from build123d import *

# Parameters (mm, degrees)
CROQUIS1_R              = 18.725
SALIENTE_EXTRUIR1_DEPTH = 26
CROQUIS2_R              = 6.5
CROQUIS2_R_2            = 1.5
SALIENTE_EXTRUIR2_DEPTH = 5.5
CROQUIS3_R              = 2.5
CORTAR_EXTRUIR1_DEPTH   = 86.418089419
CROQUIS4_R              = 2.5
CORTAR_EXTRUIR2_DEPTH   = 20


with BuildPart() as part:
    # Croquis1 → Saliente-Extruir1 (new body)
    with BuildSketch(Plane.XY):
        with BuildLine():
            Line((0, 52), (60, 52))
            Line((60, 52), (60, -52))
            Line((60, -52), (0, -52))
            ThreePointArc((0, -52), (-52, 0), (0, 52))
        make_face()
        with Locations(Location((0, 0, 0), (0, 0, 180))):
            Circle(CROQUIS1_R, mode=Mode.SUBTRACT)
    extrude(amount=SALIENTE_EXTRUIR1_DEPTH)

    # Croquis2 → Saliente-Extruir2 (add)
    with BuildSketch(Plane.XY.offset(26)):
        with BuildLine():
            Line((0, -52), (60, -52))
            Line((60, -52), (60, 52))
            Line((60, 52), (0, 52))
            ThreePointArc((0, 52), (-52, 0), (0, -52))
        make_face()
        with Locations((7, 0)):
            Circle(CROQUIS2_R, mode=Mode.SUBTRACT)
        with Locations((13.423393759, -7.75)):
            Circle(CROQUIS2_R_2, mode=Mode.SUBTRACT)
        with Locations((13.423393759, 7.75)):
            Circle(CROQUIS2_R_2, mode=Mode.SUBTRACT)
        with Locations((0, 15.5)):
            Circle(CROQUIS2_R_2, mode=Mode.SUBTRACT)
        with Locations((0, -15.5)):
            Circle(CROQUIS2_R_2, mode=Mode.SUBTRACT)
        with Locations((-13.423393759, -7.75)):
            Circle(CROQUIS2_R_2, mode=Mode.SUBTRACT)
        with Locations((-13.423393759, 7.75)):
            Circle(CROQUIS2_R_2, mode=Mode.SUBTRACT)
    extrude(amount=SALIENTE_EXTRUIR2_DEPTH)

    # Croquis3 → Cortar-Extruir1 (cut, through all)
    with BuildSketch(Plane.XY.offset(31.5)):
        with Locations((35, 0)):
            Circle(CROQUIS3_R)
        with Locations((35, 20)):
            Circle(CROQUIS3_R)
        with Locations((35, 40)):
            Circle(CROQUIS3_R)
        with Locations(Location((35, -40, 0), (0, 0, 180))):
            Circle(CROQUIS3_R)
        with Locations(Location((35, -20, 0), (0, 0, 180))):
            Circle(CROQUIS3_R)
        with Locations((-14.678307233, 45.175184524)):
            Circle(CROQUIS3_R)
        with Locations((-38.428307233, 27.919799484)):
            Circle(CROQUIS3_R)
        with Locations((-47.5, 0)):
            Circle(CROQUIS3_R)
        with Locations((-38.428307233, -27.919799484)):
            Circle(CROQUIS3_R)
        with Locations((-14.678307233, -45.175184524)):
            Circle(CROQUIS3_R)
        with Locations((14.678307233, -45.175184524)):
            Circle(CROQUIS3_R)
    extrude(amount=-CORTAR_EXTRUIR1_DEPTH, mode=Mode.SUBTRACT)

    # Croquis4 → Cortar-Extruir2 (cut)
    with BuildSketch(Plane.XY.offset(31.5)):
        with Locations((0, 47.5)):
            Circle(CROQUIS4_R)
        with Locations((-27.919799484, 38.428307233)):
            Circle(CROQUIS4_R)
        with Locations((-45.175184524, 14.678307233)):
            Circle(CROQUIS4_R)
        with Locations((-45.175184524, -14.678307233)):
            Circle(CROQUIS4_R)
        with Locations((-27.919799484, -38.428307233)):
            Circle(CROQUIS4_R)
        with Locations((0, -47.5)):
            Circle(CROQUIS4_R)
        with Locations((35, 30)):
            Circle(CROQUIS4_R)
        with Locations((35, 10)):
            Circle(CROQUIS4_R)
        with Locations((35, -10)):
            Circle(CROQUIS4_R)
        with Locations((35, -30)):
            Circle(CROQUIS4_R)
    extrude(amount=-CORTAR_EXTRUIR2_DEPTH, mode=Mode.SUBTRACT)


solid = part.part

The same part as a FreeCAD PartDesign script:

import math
import FreeCAD as App
import Part
import Sketcher

V = App.Vector

doc = App.newDocument("Part")
params = doc.addObject("Spreadsheet::Sheet", "Params")
for row, (alias, value) in enumerate([
    ("sketch1_radius", "52 mm"),
    ("sketch1_diameter", "37.45 mm"),
    ("sketch1_width", "60 mm"),
    ("pad1_length", "26 mm"),
    ("sketch2_diameter", "3 mm"),
    ("sketch2_diameter2", "13 mm"),
    ("sketch2_radius", "52 mm"),
    ("sketch2_width", "60 mm"),
    ("pad2_length", "5.5 mm"),
    ("sketch3_diameter", "5 mm"),
    ("sketch4_diameter", "5 mm"),
    ("pocket2_length", "20 mm"),
], start=1):
    params.set(f"A{row}", alias)
    params.set(f"B{row}", "=" + value)
    params.setAlias(f"B{row}", alias)

body = doc.addObject("PartDesign::Body", "Body")

# Sketch on XY plane
sketch1 = body.newObject("Sketcher::SketchObject", "Sketch")
sketch1.AttachmentSupport = (doc.getObject("XY_Plane"), [""])
sketch1.MapMode = "FlatFace"
sketch1.addGeometry([
    Part.LineSegment(V(60, 52, 0), V(0, 52, 0)),  # 0
    Part.ArcOfCircle(Part.Circle(V(0, 0, 0), V(0, 0, 1), 52), math.radians(90), math.radians(270)),  # 1
    Part.LineSegment(V(0, -52, 0), V(60, -52, 0)),  # 2
    Part.LineSegment(V(60, -52, 0), V(60, 52, 0)),  # 3
    Part.Circle(V(0, 0, 0), V(0, 0, 1), 19),  # 4
], False)
sketch1.addConstraint([
    Sketcher.Constraint("Tangent", 0, 2, 1, 1),
    Sketcher.Constraint("Tangent", 1, 2, 2, 1),
    Sketcher.Constraint("Coincident", 2, 2, 3, 1),
    Sketcher.Constraint("Coincident", 3, 2, 0, 1),
    Sketcher.Constraint("Horizontal", 0),
    Sketcher.Constraint("Horizontal", 2),
    Sketcher.Constraint("Vertical", 3),
    Sketcher.Constraint("Coincident", 1, 3, -1, 1),
    Sketcher.Constraint("Coincident", 4, 3, -1, 1),
    Sketcher.Constraint("Radius", 1, 52.0),
    Sketcher.Constraint("Diameter", 4, 37.45),
    Sketcher.Constraint("DistanceX", 0, 2, 0, 1, 60.0),
])
sketch1.setExpression("Constraints[9]", "Params.sketch1_radius")
sketch1.setExpression("Constraints[10]", "Params.sketch1_diameter")
sketch1.setExpression("Constraints[11]", "Params.sketch1_width")
pad1 = body.newObject("PartDesign::Pad", "Pad")
pad1.Profile = sketch1
pad1.setExpression("Length", "Params.pad1_length")

# Sketch on XY plane
sketch2 = body.newObject("Sketcher::SketchObject", "Sketch001")
sketch2.AttachmentSupport = (doc.getObject("XY_Plane"), [""])
sketch2.MapMode = "FlatFace"
sketch2.AttachmentOffset = App.Placement(V(0, 0, 26), App.Rotation())
sketch2.addGeometry([
    Part.LineSegment(V(0, -52, 0), V(60, -52, 0)),  # 0
    Part.LineSegment(V(60, -52, 0), V(60, 52, 0)),  # 1
    Part.LineSegment(V(60, 52, 0), V(0, 52, 0)),  # 2
    Part.ArcOfCircle(Part.Circle(V(0, 0, 0), V(0, 0, 1), 52), math.radians(90), math.radians(270)),  # 3
    Part.Circle(V(-13.4, -7.8, 0), V(0, 0, 1), 1.5),  # 4
    Part.Circle(V(0, -15.5, 0), V(0, 0, 1), 1.5),  # 5
    Part.Circle(V(7, 0, 0), V(0, 0, 1), 6.5),  # 6
    Part.Circle(V(13.4, -7.8, 0), V(0, 0, 1), 1.5),  # 7
    Part.Circle(V(-13.4, 7.8, 0), V(0, 0, 1), 1.5),  # 8
    Part.Circle(V(13.4, 7.8, 0), V(0, 0, 1), 1.5),  # 9
    Part.Circle(V(0, 15.5, 0), V(0, 0, 1), 1.5),  # 10
], False)
sketch2.addConstraint([
    Sketcher.Constraint("Coincident", 0, 2, 1, 1),
    Sketcher.Constraint("Coincident", 1, 2, 2, 1),
    Sketcher.Constraint("Tangent", 2, 2, 3, 1),
    Sketcher.Constraint("Tangent", 3, 2, 0, 1),
    Sketcher.Constraint("Horizontal", 0),
    Sketcher.Constraint("Vertical", 1),
    Sketcher.Constraint("Horizontal", 2),
    Sketcher.Constraint("Coincident", 3, 3, -1, 1),
    Sketcher.Constraint("Equal", 4, 5),
    Sketcher.Constraint("Equal", 5, 7),
    Sketcher.Constraint("Equal", 7, 8),
    Sketcher.Constraint("Equal", 8, 9),
    Sketcher.Constraint("Equal", 9, 10),
    Sketcher.Constraint("Symmetric", 7, 3, 8, 3, -1, 1),
    Sketcher.Constraint("Symmetric", 4, 3, 9, 3, -1, 1),
    Sketcher.Constraint("Symmetric", 5, 3, 10, 3, -1, 1),
    Sketcher.Constraint("Symmetric", 4, 3, 7, 3, -2),
    Sketcher.Constraint("PointOnObject", 5, 3, -2),
    Sketcher.Constraint("PointOnObject", 6, 3, -1),
    Sketcher.Constraint("Diameter", 4, 3.0),
    Sketcher.Constraint("Diameter", 6, 13.0),
    Sketcher.Constraint("Radius", 3, 52.0),
    Sketcher.Constraint("DistanceX", 0, 1, 0, 2, 60.0),
    Sketcher.Constraint("DistanceX", -1, 1, 6, 3, 7.0),
    Sketcher.Constraint("DistanceY", 5, 3, -1, 1, 15.5),
    Sketcher.Constraint("DistanceY", 4, 3, 8, 3, 15.5),
    Sketcher.Constraint("DistanceX", 4, 3, -1, 1, 13.423394),
])
sketch2.setExpression("Constraints[19]", "Params.sketch2_diameter")
sketch2.setExpression("Constraints[20]", "Params.sketch2_diameter2")
sketch2.setExpression("Constraints[21]", "Params.sketch2_radius")
sketch2.setExpression("Constraints[22]", "Params.sketch2_width")
pad2 = body.newObject("PartDesign::Pad", "Pad001")
pad2.Profile = sketch2
pad2.setExpression("Length", "Params.pad2_length")

# Sketch on XY plane
sketch3 = body.newObject("Sketcher::SketchObject", "Sketch002")
sketch3.AttachmentSupport = (doc.getObject("XY_Plane"), [""])
sketch3.MapMode = "FlatFace"
sketch3.AttachmentOffset = App.Placement(V(0, 0, 31.5), App.Rotation())
sketch3.addGeometry([
    Part.Circle(V(35, 0, 0), V(0, 0, 1), 2.5),  # 0
    Part.Circle(V(35, 20, 0), V(0, 0, 1), 2.5),  # 1
    Part.Circle(V(35, 40, 0), V(0, 0, 1), 2.5),  # 2
    Part.Circle(V(35, -40, 0), V(0, 0, 1), 2.5),  # 3
    Part.Circle(V(35, -20, 0), V(0, 0, 1), 2.5),  # 4
    Part.Circle(V(-14.7, 45.2, 0), V(0, 0, 1), 2.5),  # 5
    Part.Circle(V(-38.4, 27.9, 0), V(0, 0, 1), 2.5),  # 6
    Part.Circle(V(-47.5, 0, 0), V(0, 0, 1), 2.5),  # 7
    Part.Circle(V(-38.4, -27.9, 0), V(0, 0, 1), 2.5),  # 8
    Part.Circle(V(-14.7, -45.2, 0), V(0, 0, 1), 2.5),  # 9
    Part.Circle(V(14.7, -45.2, 0), V(0, 0, 1), 2.5),  # 10
], False)
sketch3.addConstraint([
    Sketcher.Constraint("Equal", 0, 1),
    Sketcher.Constraint("Equal", 1, 2),
    Sketcher.Constraint("Equal", 2, 3),
    Sketcher.Constraint("Equal", 3, 4),
    Sketcher.Constraint("Equal", 4, 5),
    Sketcher.Constraint("Equal", 5, 6),
    Sketcher.Constraint("Equal", 6, 7),
    Sketcher.Constraint("Equal", 7, 8),
    Sketcher.Constraint("Equal", 8, 9),
    Sketcher.Constraint("Equal", 9, 10),
    Sketcher.Constraint("Symmetric", 5, 3, 10, 3, -1, 1),
    Sketcher.Constraint("Symmetric", 9, 3, 10, 3, -2),
    Sketcher.Constraint("Symmetric", 2, 3, 3, 3, -1),
    Sketcher.Constraint("Symmetric", 1, 3, 4, 3, -1),
    Sketcher.Constraint("Symmetric", 6, 3, 8, 3, -1),
    Sketcher.Constraint("PointOnObject", 0, 3, -1),
    Sketcher.Constraint("PointOnObject", 7, 3, -1),
    Sketcher.Constraint("Vertical", 0, 3, 1, 3),
    Sketcher.Constraint("Vertical", 1, 3, 2, 3),
    Sketcher.Constraint("Diameter", 0, 5.0),
    Sketcher.Constraint("DistanceX", -1, 1, 0, 3, 35.0),
    Sketcher.Constraint("DistanceY", -1, 1, 1, 3, 20.0),
    Sketcher.Constraint("DistanceY", -1, 1, 2, 3, 40.0),
    Sketcher.Constraint("DistanceX", 7, 3, -1, 1, 47.5),
    Sketcher.Constraint("DistanceX", 6, 3, 5, 3, 23.75),
    Sketcher.Constraint("DistanceY", -1, 1, 6, 3, 27.919799),
    Sketcher.Constraint("DistanceX", 5, 3, -1, 1, 14.678307),
    Sketcher.Constraint("DistanceY", -1, 1, 5, 3, 45.175185),
])
sketch3.setExpression("Constraints[19]", "Params.sketch3_diameter")
pocket1 = body.newObject("PartDesign::Pocket", "Pocket")
pocket1.Profile = sketch3
pocket1.Type = "ThroughAll"

# Sketch on XY plane
sketch4 = body.newObject("Sketcher::SketchObject", "Sketch003")
sketch4.AttachmentSupport = (doc.getObject("XY_Plane"), [""])
sketch4.MapMode = "FlatFace"
sketch4.AttachmentOffset = App.Placement(V(0, 0, 31.5), App.Rotation())
sketch4.addGeometry([
    Part.Circle(V(0, 47.5, 0), V(0, 0, 1), 2.5),  # 0
    Part.Circle(V(-27.9, 38.4, 0), V(0, 0, 1), 2.5),  # 1
    Part.Circle(V(-45.2, 14.7, 0), V(0, 0, 1), 2.5),  # 2
    Part.Circle(V(-45.2, -14.7, 0), V(0, 0, 1), 2.5),  # 3
    Part.Circle(V(-27.9, -38.4, 0), V(0, 0, 1), 2.5),  # 4
    Part.Circle(V(0, -47.5, 0), V(0, 0, 1), 2.5),  # 5
    Part.Circle(V(35, 30, 0), V(0, 0, 1), 2.5),  # 6
    Part.Circle(V(35, 10, 0), V(0, 0, 1), 2.5),  # 7
    Part.Circle(V(35, -10, 0), V(0, 0, 1), 2.5),  # 8
    Part.Circle(V(35, -30, 0), V(0, 0, 1), 2.5),  # 9
], False)
sketch4.addConstraint([
    Sketcher.Constraint("Equal", 0, 1),
    Sketcher.Constraint("Equal", 1, 2),
    Sketcher.Constraint("Equal", 2, 3),
    Sketcher.Constraint("Equal", 3, 4),
    Sketcher.Constraint("Equal", 4, 5),
    Sketcher.Constraint("Equal", 5, 6),
    Sketcher.Constraint("Equal", 6, 7),
    Sketcher.Constraint("Equal", 7, 8),
    Sketcher.Constraint("Equal", 8, 9),
    Sketcher.Constraint("Symmetric", 0, 3, 5, 3, -1, 1),
    Sketcher.Constraint("Symmetric", 2, 3, 3, 3, -1),
    Sketcher.Constraint("Symmetric", 1, 3, 4, 3, -1),
    Sketcher.Constraint("Symmetric", 7, 3, 8, 3, -1),
    Sketcher.Constraint("Symmetric", 6, 3, 9, 3, -1),
    Sketcher.Constraint("PointOnObject", 0, 3, -2),
    Sketcher.Constraint("Vertical", 6, 3, 7, 3),
    Sketcher.Constraint("Diameter", 0, 5.0),
    Sketcher.Constraint("DistanceX", -1, 1, 6, 3, 35.0),
    Sketcher.Constraint("DistanceY", -1, 1, 6, 3, 30.0),
    Sketcher.Constraint("DistanceY", -1, 1, 7, 3, 10.0),
    Sketcher.Constraint("DistanceY", 5, 3, 0, 3, 95.0),
    Sketcher.Constraint("DistanceY", 2, 3, 1, 3, 23.75),
    Sketcher.Constraint("DistanceX", 1, 3, -1, 1, 27.919799),
    Sketcher.Constraint("DistanceY", -1, 1, 1, 3, 38.428307),
    Sketcher.Constraint("DistanceX", 2, 3, -1, 1, 45.175185),
])
sketch4.setExpression("Constraints[16]", "Params.sketch4_diameter")
pocket2 = body.newObject("PartDesign::Pocket", "Pocket001")
pocket2.Profile = sketch4
pocket2.setExpression("Length", "Params.pocket2_length")

doc.recompute()
